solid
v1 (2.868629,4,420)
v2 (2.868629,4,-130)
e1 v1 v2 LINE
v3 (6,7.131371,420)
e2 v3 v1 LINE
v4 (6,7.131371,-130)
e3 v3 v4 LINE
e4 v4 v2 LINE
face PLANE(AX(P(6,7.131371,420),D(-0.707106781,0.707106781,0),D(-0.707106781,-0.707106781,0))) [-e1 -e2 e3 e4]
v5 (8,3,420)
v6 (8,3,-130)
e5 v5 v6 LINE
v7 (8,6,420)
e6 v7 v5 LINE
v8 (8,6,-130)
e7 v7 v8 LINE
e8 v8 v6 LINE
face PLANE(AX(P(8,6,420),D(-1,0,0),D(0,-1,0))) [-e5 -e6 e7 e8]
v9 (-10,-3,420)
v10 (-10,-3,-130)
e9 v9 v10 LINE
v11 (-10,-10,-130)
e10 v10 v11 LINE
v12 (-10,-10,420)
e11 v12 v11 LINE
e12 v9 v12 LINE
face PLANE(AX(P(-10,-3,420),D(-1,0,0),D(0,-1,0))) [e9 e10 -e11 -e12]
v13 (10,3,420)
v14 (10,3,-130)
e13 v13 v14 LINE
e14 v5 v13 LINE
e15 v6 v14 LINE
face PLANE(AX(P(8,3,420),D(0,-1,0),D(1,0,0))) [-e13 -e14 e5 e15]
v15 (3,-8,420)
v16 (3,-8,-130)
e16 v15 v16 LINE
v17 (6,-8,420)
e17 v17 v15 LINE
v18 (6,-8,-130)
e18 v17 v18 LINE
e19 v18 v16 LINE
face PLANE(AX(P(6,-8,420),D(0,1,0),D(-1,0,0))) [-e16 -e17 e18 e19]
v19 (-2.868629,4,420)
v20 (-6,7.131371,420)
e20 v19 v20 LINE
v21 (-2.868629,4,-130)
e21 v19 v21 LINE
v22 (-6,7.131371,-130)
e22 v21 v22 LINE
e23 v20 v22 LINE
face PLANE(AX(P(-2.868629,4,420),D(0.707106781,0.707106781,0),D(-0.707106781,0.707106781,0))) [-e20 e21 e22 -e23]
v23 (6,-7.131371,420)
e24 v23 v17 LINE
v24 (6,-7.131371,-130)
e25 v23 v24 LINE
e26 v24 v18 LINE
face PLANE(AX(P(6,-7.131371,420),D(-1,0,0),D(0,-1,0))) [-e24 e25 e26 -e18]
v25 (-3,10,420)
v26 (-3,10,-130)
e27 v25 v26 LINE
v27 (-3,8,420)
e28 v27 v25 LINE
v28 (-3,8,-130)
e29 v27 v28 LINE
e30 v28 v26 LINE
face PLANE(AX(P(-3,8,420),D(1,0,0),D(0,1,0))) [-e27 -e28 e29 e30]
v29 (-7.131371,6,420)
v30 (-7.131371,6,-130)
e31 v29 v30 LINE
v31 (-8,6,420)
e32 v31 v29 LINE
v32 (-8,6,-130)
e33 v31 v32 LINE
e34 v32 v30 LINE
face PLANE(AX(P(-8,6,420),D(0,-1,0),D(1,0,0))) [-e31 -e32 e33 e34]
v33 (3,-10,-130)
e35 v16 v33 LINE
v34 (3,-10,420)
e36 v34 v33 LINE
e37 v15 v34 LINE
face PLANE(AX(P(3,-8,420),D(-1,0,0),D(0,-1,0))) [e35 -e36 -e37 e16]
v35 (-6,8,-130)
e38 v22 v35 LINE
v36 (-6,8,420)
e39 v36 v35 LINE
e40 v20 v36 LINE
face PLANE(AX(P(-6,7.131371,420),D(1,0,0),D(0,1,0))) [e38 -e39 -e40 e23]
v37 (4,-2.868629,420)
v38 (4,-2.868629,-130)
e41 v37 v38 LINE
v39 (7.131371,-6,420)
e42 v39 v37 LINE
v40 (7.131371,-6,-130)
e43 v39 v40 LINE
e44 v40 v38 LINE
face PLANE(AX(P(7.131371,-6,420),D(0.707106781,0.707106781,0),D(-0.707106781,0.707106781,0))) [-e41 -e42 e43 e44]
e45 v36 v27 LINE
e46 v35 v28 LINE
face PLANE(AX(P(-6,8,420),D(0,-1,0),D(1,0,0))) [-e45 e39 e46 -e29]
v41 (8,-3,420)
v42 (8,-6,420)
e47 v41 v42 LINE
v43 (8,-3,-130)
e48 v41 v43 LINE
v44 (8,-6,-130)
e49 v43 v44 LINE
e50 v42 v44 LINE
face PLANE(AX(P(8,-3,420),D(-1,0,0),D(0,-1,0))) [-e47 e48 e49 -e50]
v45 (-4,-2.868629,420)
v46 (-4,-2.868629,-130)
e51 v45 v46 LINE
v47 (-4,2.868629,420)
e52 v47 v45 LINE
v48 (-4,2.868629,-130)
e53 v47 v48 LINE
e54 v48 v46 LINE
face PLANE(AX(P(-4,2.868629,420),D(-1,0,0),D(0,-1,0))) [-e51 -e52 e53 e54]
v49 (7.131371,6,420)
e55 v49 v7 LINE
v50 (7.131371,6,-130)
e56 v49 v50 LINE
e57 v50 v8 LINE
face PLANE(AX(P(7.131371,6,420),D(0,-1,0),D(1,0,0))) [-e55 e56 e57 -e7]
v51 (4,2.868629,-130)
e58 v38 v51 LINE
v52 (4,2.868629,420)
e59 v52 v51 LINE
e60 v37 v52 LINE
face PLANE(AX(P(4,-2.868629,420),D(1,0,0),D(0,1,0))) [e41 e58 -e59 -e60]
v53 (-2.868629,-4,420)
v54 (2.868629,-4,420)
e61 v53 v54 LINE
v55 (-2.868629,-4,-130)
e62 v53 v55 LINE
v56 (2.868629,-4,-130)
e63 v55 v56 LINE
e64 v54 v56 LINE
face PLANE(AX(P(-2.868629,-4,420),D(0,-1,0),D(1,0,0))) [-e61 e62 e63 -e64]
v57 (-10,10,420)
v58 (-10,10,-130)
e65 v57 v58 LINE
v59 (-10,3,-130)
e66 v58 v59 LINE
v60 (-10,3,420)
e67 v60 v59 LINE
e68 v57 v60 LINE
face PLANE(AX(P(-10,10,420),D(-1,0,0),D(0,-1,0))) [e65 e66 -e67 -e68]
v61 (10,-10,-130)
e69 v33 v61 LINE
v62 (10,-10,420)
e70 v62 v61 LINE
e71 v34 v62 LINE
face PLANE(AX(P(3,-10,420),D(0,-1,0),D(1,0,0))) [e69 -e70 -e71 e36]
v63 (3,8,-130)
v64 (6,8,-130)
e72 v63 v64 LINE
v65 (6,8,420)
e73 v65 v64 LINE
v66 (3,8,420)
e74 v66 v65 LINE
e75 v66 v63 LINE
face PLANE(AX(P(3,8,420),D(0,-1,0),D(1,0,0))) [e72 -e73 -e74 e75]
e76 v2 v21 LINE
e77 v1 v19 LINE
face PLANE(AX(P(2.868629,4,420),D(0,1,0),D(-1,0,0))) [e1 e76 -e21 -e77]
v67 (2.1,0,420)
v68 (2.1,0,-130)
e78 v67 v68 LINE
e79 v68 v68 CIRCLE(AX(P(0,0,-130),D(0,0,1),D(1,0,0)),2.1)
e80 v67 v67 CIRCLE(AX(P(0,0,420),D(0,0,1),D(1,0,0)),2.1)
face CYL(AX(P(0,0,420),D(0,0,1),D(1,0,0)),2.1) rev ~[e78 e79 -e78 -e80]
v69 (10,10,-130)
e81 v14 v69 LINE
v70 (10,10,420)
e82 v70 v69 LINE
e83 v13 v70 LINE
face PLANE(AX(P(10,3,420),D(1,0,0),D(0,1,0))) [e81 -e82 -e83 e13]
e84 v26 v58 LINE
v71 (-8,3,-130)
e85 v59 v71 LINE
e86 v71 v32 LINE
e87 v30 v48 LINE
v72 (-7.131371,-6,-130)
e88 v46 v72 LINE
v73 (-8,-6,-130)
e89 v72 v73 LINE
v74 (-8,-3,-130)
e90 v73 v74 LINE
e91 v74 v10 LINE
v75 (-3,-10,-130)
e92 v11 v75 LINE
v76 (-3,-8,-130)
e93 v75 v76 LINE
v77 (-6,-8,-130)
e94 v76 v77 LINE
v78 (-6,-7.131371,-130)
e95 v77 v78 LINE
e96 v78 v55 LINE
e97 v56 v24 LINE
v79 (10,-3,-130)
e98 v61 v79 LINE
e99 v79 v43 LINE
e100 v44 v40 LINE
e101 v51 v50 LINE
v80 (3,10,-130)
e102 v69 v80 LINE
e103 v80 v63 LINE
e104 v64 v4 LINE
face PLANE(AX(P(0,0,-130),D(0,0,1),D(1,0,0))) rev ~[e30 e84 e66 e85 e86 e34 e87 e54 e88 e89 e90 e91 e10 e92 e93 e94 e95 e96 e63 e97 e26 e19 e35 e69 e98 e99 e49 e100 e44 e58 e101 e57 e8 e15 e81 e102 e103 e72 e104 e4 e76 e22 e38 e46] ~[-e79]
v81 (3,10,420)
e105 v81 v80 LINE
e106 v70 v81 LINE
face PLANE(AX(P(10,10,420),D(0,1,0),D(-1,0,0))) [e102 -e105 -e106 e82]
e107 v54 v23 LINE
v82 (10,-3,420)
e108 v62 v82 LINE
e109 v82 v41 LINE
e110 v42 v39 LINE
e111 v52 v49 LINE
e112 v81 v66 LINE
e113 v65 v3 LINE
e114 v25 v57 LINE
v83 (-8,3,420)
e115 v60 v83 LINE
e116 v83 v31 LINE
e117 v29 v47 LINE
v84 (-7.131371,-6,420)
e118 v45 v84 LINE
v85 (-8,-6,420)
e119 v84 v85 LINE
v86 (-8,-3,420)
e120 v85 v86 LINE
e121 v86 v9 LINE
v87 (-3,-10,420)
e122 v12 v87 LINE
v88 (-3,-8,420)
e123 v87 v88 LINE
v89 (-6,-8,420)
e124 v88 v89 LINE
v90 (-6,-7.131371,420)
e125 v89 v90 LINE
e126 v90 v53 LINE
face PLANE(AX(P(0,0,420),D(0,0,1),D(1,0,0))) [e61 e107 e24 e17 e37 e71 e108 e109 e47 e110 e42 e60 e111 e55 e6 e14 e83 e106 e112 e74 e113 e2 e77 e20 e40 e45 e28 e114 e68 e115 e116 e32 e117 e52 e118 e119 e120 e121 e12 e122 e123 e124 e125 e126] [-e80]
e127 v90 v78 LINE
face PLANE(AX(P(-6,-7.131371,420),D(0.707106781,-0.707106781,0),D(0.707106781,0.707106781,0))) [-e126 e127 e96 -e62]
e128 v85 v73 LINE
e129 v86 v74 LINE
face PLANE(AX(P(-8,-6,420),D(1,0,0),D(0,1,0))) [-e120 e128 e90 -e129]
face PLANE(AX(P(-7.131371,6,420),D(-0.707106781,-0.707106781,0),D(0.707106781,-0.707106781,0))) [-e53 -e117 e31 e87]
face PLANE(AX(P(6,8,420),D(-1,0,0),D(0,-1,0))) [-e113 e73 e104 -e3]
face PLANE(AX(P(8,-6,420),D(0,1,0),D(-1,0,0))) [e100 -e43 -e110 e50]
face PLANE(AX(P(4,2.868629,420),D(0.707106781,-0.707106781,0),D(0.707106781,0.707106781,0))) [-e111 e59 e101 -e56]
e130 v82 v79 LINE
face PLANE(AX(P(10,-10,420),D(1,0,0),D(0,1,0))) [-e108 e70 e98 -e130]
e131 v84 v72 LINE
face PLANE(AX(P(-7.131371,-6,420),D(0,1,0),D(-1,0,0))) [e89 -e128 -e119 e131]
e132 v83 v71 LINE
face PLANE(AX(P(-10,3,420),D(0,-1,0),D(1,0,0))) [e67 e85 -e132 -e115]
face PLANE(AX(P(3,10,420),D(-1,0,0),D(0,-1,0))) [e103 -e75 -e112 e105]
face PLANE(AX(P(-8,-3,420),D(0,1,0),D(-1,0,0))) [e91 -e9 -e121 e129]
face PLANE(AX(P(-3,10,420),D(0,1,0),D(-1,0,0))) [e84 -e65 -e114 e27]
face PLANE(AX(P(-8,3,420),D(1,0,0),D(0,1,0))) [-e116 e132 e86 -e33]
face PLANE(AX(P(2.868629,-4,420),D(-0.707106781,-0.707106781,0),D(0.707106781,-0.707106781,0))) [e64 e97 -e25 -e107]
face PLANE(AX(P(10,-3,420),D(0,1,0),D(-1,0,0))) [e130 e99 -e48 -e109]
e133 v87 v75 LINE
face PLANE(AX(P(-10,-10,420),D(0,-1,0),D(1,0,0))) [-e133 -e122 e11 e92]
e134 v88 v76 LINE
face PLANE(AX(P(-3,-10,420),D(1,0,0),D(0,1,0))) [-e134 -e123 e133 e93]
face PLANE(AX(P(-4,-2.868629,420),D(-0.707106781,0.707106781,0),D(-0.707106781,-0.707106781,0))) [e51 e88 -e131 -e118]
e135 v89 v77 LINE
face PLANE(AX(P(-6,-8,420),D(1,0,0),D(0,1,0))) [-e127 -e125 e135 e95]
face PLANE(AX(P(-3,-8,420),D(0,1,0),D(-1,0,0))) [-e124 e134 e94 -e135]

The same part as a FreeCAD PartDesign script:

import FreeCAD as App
import Part
import Sketcher

V = App.Vector


def add_polygon(sketch, points):
    """Adds a closed chain of lines whose ends are joined by coincident constraints."""
    first, n = sketch.GeometryCount, len(points)
    for a, b in zip(points, points[1:] + points[:1]):
        sketch.addGeometry(Part.LineSegment(App.Vector(*a, 0), App.Vector(*b, 0)), False)
    for i in range(n):
        sketch.addConstraint(Sketcher.Constraint("Coincident", first + i, 2, first + (i + 1) % n, 1))

doc = App.newDocument("Part")
body = doc.addObject("PartDesign::Body", "Body")

# Sketch on XY plane
sketch1 = body.newObject("Sketcher::SketchObject", "Sketch")
sketch1.AttachmentSupport = (doc.getObject("XY_Plane"), [""])
sketch1.MapMode = "FlatFace"
sketch1.AttachmentOffset = App.Placement(V(0, 0, 420), App.Rotation())
add_polygon(sketch1, [(-10, 10), (-10, 3), (-8, 3), (-8, 6), (-7.1, 6), (-4, 2.9), (-4, -2.9), (-7.1, -6), (-8, -6), (-8, -3), (-10, -3), (-10, -10), (-3, -10), (-3, -8), (-6, -8), (-6, -7.1), (-2.9, -4), (2.9, -4), (6, -7.1), (6, -8), (3, -8), (3, -10), (10, -10), (10, -3), (8, -3), (8, -6), (7.1, -6), (4, -2.9), (4, 2.9), (7.1, 6), (8, 6), (8, 3), (10, 3), (10, 10), (3, 10), (3, 8), (6, 8), (6, 7.1), (2.9, 4), (-2.9, 4), (-6, 7.1), (-6, 8), (-3, 8), (-3, 10)])  # lines 0-43
sketch1.addGeometry(Part.Circle(V(0, 0, 0), V(0, 0, 1), 2.1), False)  # 44
sketch1.addConstraint(Sketcher.Constraint("Vertical", 0))
sketch1.addConstraint(Sketcher.Constraint("Horizontal", 1))
sketch1.addConstraint(Sketcher.Constraint("Vertical", 2))
sketch1.addConstraint(Sketcher.Constraint("Horizontal", 3))
sketch1.addConstraint(Sketcher.Constraint("Vertical", 5))
sketch1.addConstraint(Sketcher.Constraint("Horizontal", 7))
sketch1.addConstraint(Sketcher.Constraint("Vertical", 8))
sketch1.addConstraint(Sketcher.Constraint("Horizontal", 9))
sketch1.addConstraint(Sketcher.Constraint("Vertical", 10))
sketch1.addConstraint(Sketcher.Constraint("Horizontal", 11))
sketch1.addConstraint(Sketcher.Constraint("Vertical", 12))
sketch1.addConstraint(Sketcher.Constraint("Horizontal", 13))
sketch1.addConstraint(Sketcher.Constraint("Vertical", 14))
sketch1.addConstraint(Sketcher.Constraint("Horizontal", 16))
sketch1.addConstraint(Sketcher.Constraint("Vertical", 18))
sketch1.addConstraint(Sketcher.Constraint("Horizontal", 19))
sketch1.addConstraint(Sketcher.Constraint("Vertical", 20))
sketch1.addConstraint(Sketcher.Constraint("Horizontal", 21))
sketch1.addConstraint(Sketcher.Constraint("Vertical", 22))
sketch1.addConstraint(Sketcher.Constraint("Horizontal", 23))
sketch1.addConstraint(Sketcher.Constraint("Vertical", 24))
sketch1.addConstraint(Sketcher.Constraint("Horizontal", 25))
sketch1.addConstraint(Sketcher.Constraint("Vertical", 27))
sketch1.addConstraint(Sketcher.Constraint("Horizontal", 29))
sketch1.addConstraint(Sketcher.Constraint("Vertical", 30))
sketch1.addConstraint(Sketcher.Constraint("Horizontal", 31))
sketch1.addConstraint(Sketcher.Constraint("Vertical", 32))
sketch1.addConstraint(Sketcher.Constraint("Horizontal", 33))
sketch1.addConstraint(Sketcher.Constraint("Vertical", 34))
sketch1.addConstraint(Sketcher.Constraint("Horizontal", 35))
sketch1.addConstraint(Sketcher.Constraint("Vertical", 36))
sketch1.addConstraint(Sketcher.Constraint("Horizontal", 38))
sketch1.addConstraint(Sketcher.Constraint("Vertical", 40))
sketch1.addConstraint(Sketcher.Constraint("Horizontal", 41))
sketch1.addConstraint(Sketcher.Constraint("Vertical", 42))
sketch1.addConstraint(Sketcher.Constraint("Horizontal", 43))
sketch1.addConstraint(Sketcher.Constraint("Coincident", 44, 3, -1, 1))
sketch1.addConstraint(Sketcher.Constraint("Symmetric", 0, 2, 22, 2, -1, 1))
sketch1.addConstraint(Sketcher.Constraint("Symmetric", 2, 2, 24, 2, -1, 1))
sketch1.addConstraint(Sketcher.Constraint("Symmetric", 4, 2, 26, 2, -1, 1))
sketch1.addConstraint(Sketcher.Constraint("Symmetric", 6, 2, 28, 2, -1, 1))
sketch1.addConstraint(Sketcher.Constraint("Symmetric", 8, 2, 30, 2, -1, 1))
sketch1.addConstraint(Sketcher.Constraint("Symmetric", 10, 2, 32, 2, -1, 1))
sketch1.addConstraint(Sketcher.Constraint("Symmetric", 12, 2, 34, 2, -1, 1))
sketch1.addConstraint(Sketcher.Constraint("Symmetric", 14, 2, 36, 2, -1, 1))
sketch1.addConstraint(Sketcher.Constraint("Symmetric", 15, 2, 37, 2, -1, 1))
sketch1.addConstraint(Sketcher.Constraint("Symmetric", 17, 2, 39, 2, -1, 1))
sketch1.addConstraint(Sketcher.Constraint("Symmetric", 19, 2, 41, 2, -1, 1))
sketch1.addConstraint(Sketcher.Constraint("Symmetric", 14, 2, 17, 2, -2))
sketch1.addConstraint(Sketcher.Constraint("Symmetric", 12, 2, 19, 2, -2))
sketch1.addConstraint(Sketcher.Constraint("Symmetric", 10, 2, 21, 2, -2))
sketch1.addConstraint(Sketcher.Constraint("Symmetric", 8, 2, 23, 2, -2))
sketch1.addConstraint(Sketcher.Constraint("Symmetric", 6, 2, 25, 2, -2))
sketch1.addConstraint(Sketcher.Constraint("Perpendicular", 4, 6))
sketch1.addConstraint(Sketcher.Constraint("Parallel", 6, 15))
sketch1.addConstraint(Sketcher.Constraint("Perpendicular", 15, 17))
sketch1.addConstraint(Sketcher.Constraint("Parallel", 17, 26))
sketch1.addConstraint(Sketcher.Constraint("Perpendicular", 26, 28))
sketch1.addConstraint(Sketcher.Constraint("Perpendicular", 37, 39))
sketch1.addConstraint(Sketcher.Constraint("Horizontal", 5, 2, 26, 2))
sketch1.addConstraint(Sketcher.Constraint("Horizontal", 33, 2, 42, 2))
sketch1.addConstraint(Sketcher.Constraint("Equal", 43, 0))
sketch1.addConstraint(Sketcher.Constraint("Equal", 41, 2))
sketch1.addConstraint(Sketcher.Constraint("Equal", 38, 5))
sketch1.addConstraint(Sketcher.Constraint("Equal", 31, 12))
sketch1.addConstraint(Sketcher.Constraint("Equal", 29, 14))
sketch1.addConstraint(Sketcher.Constraint("Equal", 6, 15))
sketch1.addConstraint(Sketcher.Constraint("Diameter", 44, 4.2))
sketch1.addConstraint(Sketcher.Constraint("DistanceX", 1, 1, 1, 2, 2.0))
sketch1.addConstraint(Sketcher.Constraint("DistanceX", 11, 1, 11, 2, 7.0))
sketch1.addConstraint(Sketcher.Constraint("DistanceX", 13, 2, 13, 1, 3.0))
sketch1.addConstraint(Sketcher.Constraint("DistanceX", 0, 2, -1, 1, 10.0))
sketch1.addConstraint(Sketcher.Constraint("DistanceX", 4, 2, -1, 1, 4.0))
sketch1.addConstraint(Sketcher.Constraint("DistanceX", 3, 1, 3, 2, 0.868629))
pad1 = body.newObject("PartDesign::Pad", "Pad")
pad1.Profile = sketch1
pad1.Length = 550
pad1.Reversed = True

doc.recompute()
